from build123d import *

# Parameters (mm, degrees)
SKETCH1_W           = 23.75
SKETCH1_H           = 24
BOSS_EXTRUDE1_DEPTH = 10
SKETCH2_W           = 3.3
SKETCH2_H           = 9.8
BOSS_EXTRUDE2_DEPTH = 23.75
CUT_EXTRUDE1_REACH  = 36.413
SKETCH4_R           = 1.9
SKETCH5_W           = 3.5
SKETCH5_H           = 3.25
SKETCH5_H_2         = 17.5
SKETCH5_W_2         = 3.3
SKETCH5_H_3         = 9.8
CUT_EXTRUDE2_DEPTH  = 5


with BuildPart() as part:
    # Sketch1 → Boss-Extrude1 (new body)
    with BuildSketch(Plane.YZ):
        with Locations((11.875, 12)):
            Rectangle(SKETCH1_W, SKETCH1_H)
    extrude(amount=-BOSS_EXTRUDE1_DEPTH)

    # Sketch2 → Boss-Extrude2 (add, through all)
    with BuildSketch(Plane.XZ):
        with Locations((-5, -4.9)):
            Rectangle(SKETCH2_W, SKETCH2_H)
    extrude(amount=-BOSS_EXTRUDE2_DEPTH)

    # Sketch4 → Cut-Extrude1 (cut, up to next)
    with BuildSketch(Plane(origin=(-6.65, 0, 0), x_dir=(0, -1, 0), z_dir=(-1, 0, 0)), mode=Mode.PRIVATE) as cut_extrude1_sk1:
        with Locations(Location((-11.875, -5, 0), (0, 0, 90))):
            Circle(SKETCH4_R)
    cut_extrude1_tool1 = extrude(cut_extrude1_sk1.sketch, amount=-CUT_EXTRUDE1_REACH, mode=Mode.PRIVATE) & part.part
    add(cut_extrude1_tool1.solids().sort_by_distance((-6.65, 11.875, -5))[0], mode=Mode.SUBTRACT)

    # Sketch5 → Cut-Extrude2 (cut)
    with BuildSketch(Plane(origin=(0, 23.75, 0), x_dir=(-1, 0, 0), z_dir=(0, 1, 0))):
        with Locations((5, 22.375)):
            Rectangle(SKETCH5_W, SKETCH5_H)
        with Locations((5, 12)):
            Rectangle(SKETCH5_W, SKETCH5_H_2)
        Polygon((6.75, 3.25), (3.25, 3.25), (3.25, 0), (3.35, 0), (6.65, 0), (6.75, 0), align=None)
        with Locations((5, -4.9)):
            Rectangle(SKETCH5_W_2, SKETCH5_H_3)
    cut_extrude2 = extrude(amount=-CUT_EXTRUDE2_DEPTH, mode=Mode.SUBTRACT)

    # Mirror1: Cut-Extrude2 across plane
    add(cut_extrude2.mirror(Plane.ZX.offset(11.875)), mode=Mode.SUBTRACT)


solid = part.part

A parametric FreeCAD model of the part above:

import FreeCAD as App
import Part
import Sketcher

V = App.Vector
Q = App.Units.Quantity


def add_polygon(sketch, points):
    """Adds a closed chain of lines whose ends are joined by coincident constraints."""
    first, n = sketch.GeometryCount, len(points)
    for a, b in zip(points, points[1:] + points[:1]):
        sketch.addGeometry(Part.LineSegment(App.Vector(*a, 0), App.Vector(*b, 0)), False)
    for i in range(n):
        sketch.addConstraint(Sketcher.Constraint("Coincident", first + i, 2, first + (i + 1) % n, 1))

doc = App.newDocument("Part")
body = doc.addObject("PartDesign::Body", "Body")

# Sketch on YZ plane
sketch1 = body.newObject("Sketcher::SketchObject", "Sketch")
sketch1.AttachmentSupport = (doc.getObject("YZ_Plane"), [""])
sketch1.MapMode = "FlatFace"
add_polygon(sketch1, [(0, 24), (0, 0), (23.75, 0), (23.75, 24)])  # lines 0-3
sketch1.addConstraint([
    Sketcher.Constraint("Vertical", 0),
    Sketcher.Constraint("Horizontal", 1),
    Sketcher.Constraint("Vertical", 2),
    Sketcher.Constraint("Horizontal", 3),
    Sketcher.Constraint("Coincident", 0, 2, -1, 1),
    Sketcher.Constraint("DistanceY", 0, 2, 0, 1, Q("24 mm")),
    Sketcher.Constraint("DistanceX", 1, 1, 1, 2, Q("23.75 mm")),
])
pad1 = body.newObject("PartDesign::Pad", "Pad")
pad1.Profile = sketch1
pad1.Length = 10
pad1.Reversed = True

# Sketch on XZ plane
sketch2 = body.newObject("Sketcher::SketchObject", "Sketch001")
sketch2.AttachmentSupport = (doc.getObject("XZ_Plane"), [""])
sketch2.MapMode = "FlatFace"
add_polygon(sketch2, [(-6.65, 0), (-6.65, -9.8), (-3.35, -9.8), (-3.35, 0)])  # lines 0-3
sketch2.addConstraint([
    Sketcher.Constraint("Vertical", 0),
    Sketcher.Constraint("Horizontal", 1),
    Sketcher.Constraint("Vertical", 2),
    Sketcher.Constraint("Horizontal", 3),
    Sketcher.Constraint("PointOnObject", 2, 2, -1),
    Sketcher.Constraint("DistanceX", 1, 1, 1, 2, Q("3.3 mm")),
    Sketcher.Constraint("DistanceY", 0, 2, 0, 1, Q("9.8 mm")),
    Sketcher.Constraint("DistanceX", 0, 2, -1, 1, Q("6.65 mm")),
])
pad2 = body.newObject("PartDesign::Pad", "Pad001")
pad2.Profile = sketch2
pad2.Length = 23.75
pad2.Reversed = True

# Sketch on YZ plane
sketch3 = body.newObject("Sketcher::SketchObject", "Sketch002")
sketch3.AttachmentSupport = (doc.getObject("YZ_Plane"), [""])
sketch3.MapMode = "FlatFace"
sketch3.AttachmentOffset = App.Placement(V(0, 0, -6.65), App.Rotation())
sketch3.addGeometry(Part.Circle(V(11.875, -5, 0), V(0, 0, 1), 1.9), False)
sketch3.addConstraint([
    Sketcher.Constraint("Diameter", 0, Q("3.8 mm")),
    Sketcher.Constraint("DistanceY", 0, 3, -1, 1, Q("5 mm")),
    Sketcher.Constraint("DistanceX", -1, 1, 0, 3, Q("11.875 mm")),
])
pocket1 = body.newObject("PartDesign::Pocket", "Pocket")
pocket1.Profile = sketch3
pocket1.Type = "UpToFirst"
pocket1.Reversed = True

# Sketch on XZ plane
sketch4 = body.newObject("Sketcher::SketchObject", "Sketch003")
sketch4.AttachmentSupport = (doc.getObject("XZ_Plane"), [""])
sketch4.MapMode = "FlatFace"
sketch4.AttachmentOffset = App.Placement(V(0, 0, -23.75), App.Rotation())
add_polygon(sketch4, [(-3.25, 24), (-3.25, 0), (-3.35, 0), (-3.35, -9.8), (-6.65, -9.8), (-6.65, 0), (-6.75, 0), (-6.75, 24)])  # lines 0-7
sketch4.addConstraint([
    Sketcher.Constraint("Vertical", 0),
    Sketcher.Constraint("Horizontal", 1),
    Sketcher.Constraint("Vertical", 2),
    Sketcher.Constraint("Horizontal", 3),
    Sketcher.Constraint("Vertical", 4),
    Sketcher.Constraint("Horizontal", 5),
    Sketcher.Constraint("Vertical", 6),
    Sketcher.Constraint("Horizontal", 7),
    Sketcher.Constraint("PointOnObject", 0, 2, -1),
    Sketcher.Constraint("PointOnObject", 4, 2, -1),
    Sketcher.Constraint("Equal", 1, 5),
    Sketcher.Constraint("DistanceY", 0, 2, 0, 1, Q("24 mm")),
    Sketcher.Constraint("DistanceX", 1, 2, 1, 1, Q("0.1 mm")),
    Sketcher.Constraint("DistanceX", 3, 2, 3, 1, Q("3.3 mm")),
    Sketcher.Constraint("DistanceY", 2, 2, 2, 1, Q("9.8 mm")),
    Sketcher.Constraint("DistanceX", 0, 2, -1, 1, Q("3.25 mm")),
])
pocket2 = body.newObject("PartDesign::Pocket", "Pocket001")
pocket2.Profile = sketch4
pocket2.Length = 5
pocket2.Reversed = True
doc.recompute()

datumplane = body.newObject("PartDesign::Plane", "DatumPlane")
datumplane.AttachmentSupport = (doc.getObject("XZ_Plane"), [""])
datumplane.MapMode = "FlatFace"
datumplane.AttachmentOffset = App.Placement(V(0, 0, -11.875), App.Rotation())
mirrored = body.newObject("PartDesign::Mirrored", "Mirrored")
mirrored.Originals = [pocket2]
mirrored.MirrorPlane = (datumplane, [""])
body.Tip = mirrored

doc.recompute()
